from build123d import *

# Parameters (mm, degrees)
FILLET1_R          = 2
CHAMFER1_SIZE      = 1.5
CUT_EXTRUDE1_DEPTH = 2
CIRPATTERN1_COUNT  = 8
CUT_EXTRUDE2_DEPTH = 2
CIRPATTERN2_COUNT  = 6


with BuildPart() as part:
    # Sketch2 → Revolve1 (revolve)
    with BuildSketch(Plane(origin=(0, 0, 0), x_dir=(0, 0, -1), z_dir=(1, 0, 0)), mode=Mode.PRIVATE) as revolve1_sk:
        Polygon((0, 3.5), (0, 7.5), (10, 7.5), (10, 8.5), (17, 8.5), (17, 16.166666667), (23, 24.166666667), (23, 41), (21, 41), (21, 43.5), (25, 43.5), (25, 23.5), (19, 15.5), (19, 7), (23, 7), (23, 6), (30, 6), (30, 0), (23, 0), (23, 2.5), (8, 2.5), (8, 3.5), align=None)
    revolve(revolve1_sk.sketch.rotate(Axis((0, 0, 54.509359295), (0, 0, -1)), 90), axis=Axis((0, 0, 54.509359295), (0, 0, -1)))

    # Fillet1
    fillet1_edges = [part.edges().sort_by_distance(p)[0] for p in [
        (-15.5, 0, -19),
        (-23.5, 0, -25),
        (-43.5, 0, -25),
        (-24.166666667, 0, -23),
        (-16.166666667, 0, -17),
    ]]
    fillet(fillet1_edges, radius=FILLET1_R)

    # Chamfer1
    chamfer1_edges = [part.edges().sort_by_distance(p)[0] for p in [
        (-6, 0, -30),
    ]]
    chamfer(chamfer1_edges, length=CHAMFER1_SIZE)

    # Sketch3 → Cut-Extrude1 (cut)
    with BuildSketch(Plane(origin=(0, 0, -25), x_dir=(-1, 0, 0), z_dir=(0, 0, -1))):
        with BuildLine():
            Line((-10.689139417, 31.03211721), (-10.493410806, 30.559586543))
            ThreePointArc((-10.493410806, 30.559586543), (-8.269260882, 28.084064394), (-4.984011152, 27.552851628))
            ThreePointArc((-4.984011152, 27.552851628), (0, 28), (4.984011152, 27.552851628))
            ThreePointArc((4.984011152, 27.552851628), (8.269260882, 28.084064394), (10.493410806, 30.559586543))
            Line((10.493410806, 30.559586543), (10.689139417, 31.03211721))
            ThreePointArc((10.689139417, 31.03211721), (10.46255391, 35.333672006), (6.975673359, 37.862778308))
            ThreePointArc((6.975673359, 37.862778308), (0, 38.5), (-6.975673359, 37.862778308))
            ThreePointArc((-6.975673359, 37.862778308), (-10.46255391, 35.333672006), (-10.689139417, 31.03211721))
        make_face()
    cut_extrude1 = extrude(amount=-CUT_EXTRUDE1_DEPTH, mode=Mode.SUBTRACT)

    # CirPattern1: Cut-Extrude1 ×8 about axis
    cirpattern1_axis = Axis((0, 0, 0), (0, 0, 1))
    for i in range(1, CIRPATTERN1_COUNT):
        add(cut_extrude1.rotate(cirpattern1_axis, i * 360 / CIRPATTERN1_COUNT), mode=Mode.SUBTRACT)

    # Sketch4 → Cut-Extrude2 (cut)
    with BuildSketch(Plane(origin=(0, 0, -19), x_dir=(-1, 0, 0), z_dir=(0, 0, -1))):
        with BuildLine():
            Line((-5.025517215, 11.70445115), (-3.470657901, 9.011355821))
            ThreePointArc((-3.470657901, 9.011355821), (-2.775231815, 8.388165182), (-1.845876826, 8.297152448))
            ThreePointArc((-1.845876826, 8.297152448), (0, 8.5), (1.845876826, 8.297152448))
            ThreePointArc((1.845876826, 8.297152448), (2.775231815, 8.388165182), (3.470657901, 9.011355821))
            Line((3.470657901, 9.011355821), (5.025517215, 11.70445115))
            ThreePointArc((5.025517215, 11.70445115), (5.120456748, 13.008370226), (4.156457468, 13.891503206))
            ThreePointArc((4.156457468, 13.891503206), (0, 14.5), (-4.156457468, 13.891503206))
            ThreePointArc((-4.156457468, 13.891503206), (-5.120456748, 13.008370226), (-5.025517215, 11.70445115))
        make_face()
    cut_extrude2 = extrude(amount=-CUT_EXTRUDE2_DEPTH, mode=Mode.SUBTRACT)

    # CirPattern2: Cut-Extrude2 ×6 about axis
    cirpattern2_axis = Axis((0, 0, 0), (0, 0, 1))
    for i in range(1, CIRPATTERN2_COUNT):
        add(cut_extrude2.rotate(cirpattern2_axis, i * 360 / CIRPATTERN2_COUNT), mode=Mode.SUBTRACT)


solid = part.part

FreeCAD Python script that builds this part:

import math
import FreeCAD as App
import Part
import Sketcher
Q = App.Units.Quantity


def edges_at(feature, points):
    """Names of the edges that pass closest to the given points."""
    edges = feature.Shape.Edges
    near = lambda p: min(range(len(edges)), key=lambda i: edges[i].distToShape(Part.Vertex(*p))[0])
    return sorted({f"Edge{near(p) + 1}" for p in points})


def add_polygon(sketch, points):
    """Adds a closed chain of lines whose ends are joined by coincident constraints."""
    first, n = sketch.GeometryCount, len(points)
    for a, b in zip(points, points[1:] + points[:1]):
        sketch.addGeometry(Part.LineSegment(App.Vector(*a, 0), App.Vector(*b, 0)), False)
    for i in range(n):
        sketch.addConstraint(Sketcher.Constraint("Coincident", first + i, 2, first + (i + 1) % n, 1))

doc = App.newDocument("Part")
body = doc.addObject("PartDesign::Body", "Body")

# Sketch on YZ plane
sketch1 = doc.addObject("Sketcher::SketchObject", "Sketch")
body.addObject(sketch1)
sketch1.AttachmentSupport = (doc.YZ_Plane, [""])
sketch1.MapMode = "FlatFace"
add_polygon(sketch1, [(7.5, 0), (3.5, 0), (3.5, -8), (2.5, -8), (2.5, -23), (0, -23), (0, -30), (6, -30), (6, -23), (7, -23), (7, -19), (15.5, -19), (23.5, -25), (43.5, -25), (43.5, -21), (41, -21), (41, -23), (24.166667, -23), (16.166667, -17), (8.5, -17), (8.5, -10), (7.5, -10)])  # lines 0-21
sketch1.addConstraint([
    Sketcher.Constraint("Horizontal", 0),
    Sketcher.Constraint("Vertical", 1),
    Sketcher.Constraint("Horizontal", 2),
    Sketcher.Constraint("Vertical", 3),
    Sketcher.Constraint("Horizontal", 4),
    Sketcher.Constraint("Vertical", 5),
    Sketcher.Constraint("Horizontal", 6),
    Sketcher.Constraint("Vertical", 7),
    Sketcher.Constraint("Horizontal", 8),
    Sketcher.Constraint("Vertical", 9),
    Sketcher.Constraint("Horizontal", 10),
    Sketcher.Constraint("Horizontal", 12),
    Sketcher.Constraint("Vertical", 13),
    Sketcher.Constraint("Horizontal", 14),
    Sketcher.Constraint("Vertical", 15),
    Sketcher.Constraint("Horizontal", 16),
    Sketcher.Constraint("Horizontal", 18),
    Sketcher.Constraint("Vertical", 19),
    Sketcher.Constraint("Horizontal", 20),
    Sketcher.Constraint("Vertical", 21),
    Sketcher.Constraint("PointOnObject", 0, 2, -1),
    Sketcher.Constraint("PointOnObject", 4, 2, -2),
    Sketcher.Constraint("Parallel", 11, 17),
    Sketcher.Constraint("Horizontal", 4, 2, 7, 2),
    Sketcher.Constraint("Horizontal", 8, 2, 15, 2),
    Sketcher.Constraint("Equal", 2, 8),
    Sketcher.Constraint("Equal", 4, 14),
    Sketcher.Constraint("Equal", 8, 20),
    Sketcher.Constraint("Equal", 0, 9),
    Sketcher.Constraint("Equal", 9, 13),
    Sketcher.Constraint("Equal", 7, 19),
    Sketcher.Constraint("Equal", 11, 17),
    Sketcher.Constraint("DistanceX", 0, 2, 0, 1, Q("4 mm")),
    Sketcher.Constraint("DistanceX", 2, 2, 2, 1, Q("1 mm")),
    Sketcher.Constraint("DistanceX", 6, 1, 6, 2, Q("6 mm")),
    Sketcher.Constraint("DistanceX", 12, 1, 12, 2, Q("20 mm")),
    Sketcher.Constraint("DistanceY", 1, 2, 1, 1, Q("8 mm")),
    Sketcher.Constraint("DistanceY", 3, 2, 3, 1, Q("15 mm")),
    Sketcher.Constraint("DistanceY", 5, 2, 5, 1, Q("7 mm")),
    Sketcher.Constraint("DistanceY", 15, 2, 15, 1, Q("2 mm")),
    Sketcher.Constraint("Distance", 11, Q("10 mm")),
    Sketcher.Constraint("DistanceX", 4, 2, 4, 1, Q("2.5 mm")),
    Sketcher.Constraint("DistanceX", 10, 1, 10, 2, Q("8.5 mm")),
    Sketcher.Constraint("DistanceX", 16, 2, 16, 1, Q("16.833333 mm")),
])
revolution = doc.addObject("PartDesign::Revolution", "Revolution")
body.addObject(revolution)
revolution.Profile = sketch1
revolution.ReferenceAxis = (sketch1, ["V_Axis"])
revolution.Angle = 360
doc.recompute()

fillet = doc.addObject("PartDesign::Fillet", "Fillet")
body.addObject(fillet)
fillet.Base = (revolution, edges_at(revolution, [
    (-15.5, 0, -19),
    (-23.5, 0, -25),
    (-43.5, 0, -25),
    (-24.167, 0, -23),
    (-16.167, 0, -17),
]))
fillet.Radius = 2
doc.recompute()

chamfer = doc.addObject("PartDesign::Chamfer", "Chamfer")
body.addObject(chamfer)
chamfer.Base = (fillet, edges_at(fillet, [(-6, 0, -30)]))
chamfer.Size = 1.5

# Sketch on XY plane
sketch2 = doc.addObject("Sketcher::SketchObject", "Sketch001")
body.addObject(sketch2)
sketch2.AttachmentSupport = (doc.XY_Plane, [""])
sketch2.MapMode = "FlatFace"
sketch2.AttachmentOffset = App.Placement(App.Vector(0, 0, -25), App.Rotation())
sketch2.addGeometry([
    Part.LineSegment(App.Vector(10.689139, 31.032117, 0), App.Vector(10.493411, 30.559587, 0)),  # 0
    Part.ArcOfCircle(Part.Circle(App.Vector(5.874013, 32.473004, 0), App.Vector(0, 0, 1), 5), math.radians(-100.25331), math.radians(-22.5)),  # 1
    Part.ArcOfCircle(Part.Circle(App.Vector(0, 0, 0), App.Vector(0, 0, 1), 28), math.radians(79.74669), math.radians(100.25331)),  # 2
    Part.ArcOfCircle(Part.Circle(App.Vector(-5.874013, 32.473004, 0), App.Vector(0, 0, 1), 5), math.radians(-157.5), math.radians(-79.74669)),  # 3
    Part.LineSegment(App.Vector(-10.493411, 30.559587, 0), App.Vector(-10.689139, 31.032117, 0)),  # 4
    Part.ArcOfCircle(Part.Circle(App.Vector(-6.069742, 32.945534, 0), App.Vector(0, 0, 1), 5), math.radians(100.438867), math.radians(202.5)),  # 5
    Part.ArcOfCircle(Part.Circle(App.Vector(0, 0, 0), App.Vector(0, 0, 1), 38.5), math.radians(79.561133), math.radians(100.438867)),  # 6
    Part.ArcOfCircle(Part.Circle(App.Vector(6.069742, 32.945534, 0), App.Vector(0, 0, 1), 5), math.radians(-22.5), math.radians(79.561133)),  # 7
], False)
sketch2.addConstraint([
    Sketcher.Constraint("Tangent", 0, 2, 1, 2),
    Sketcher.Constraint("Tangent", 1, 1, 2, 1),
    Sketcher.Constraint("Tangent", 2, 2, 3, 2),
    Sketcher.Constraint("Tangent", 3, 1, 4, 1),
    Sketcher.Constraint("Tangent", 4, 2, 5, 2),
    Sketcher.Constraint("Tangent", 5, 1, 6, 2),
    Sketcher.Constraint("Tangent", 6, 1, 7, 2),
    Sketcher.Constraint("Tangent", 7, 1, 0, 1),
    Sketcher.Constraint("Coincident", 2, 3, -1, 1),
    Sketcher.Constraint("Coincident", 6, 3, -1, 1),
    Sketcher.Constraint("Equal", 1, 3),
    Sketcher.Constraint("Equal", 3, 5),
    Sketcher.Constraint("Equal", 5, 7),
    Sketcher.Constraint("Symmetric", 0, 2, 3, 1, -2),
    Sketcher.Constraint("Radius", 1, Q("5 mm")),
    Sketcher.Constraint("Radius", 2, Q("28 mm")),
    Sketcher.Constraint("Radius", 6, Q("38.5 mm")),
    Sketcher.Constraint("Angle", 0, Q("-112.5 deg")),
    Sketcher.Constraint("DistanceX", 1, 1, 1, 3, Q("0.890002 mm")),
])
pocket1 = doc.addObject("PartDesign::Pocket", "Pocket")
body.addObject(pocket1)
pocket1.Profile = sketch2
pocket1.Length = 2
pocket1.Reversed = True
doc.recompute()

polarpattern = doc.addObject("PartDesign::PolarPattern", "PolarPattern")
body.addObject(polarpattern)
polarpattern.Originals = [pocket1]
polarpattern.Axis = (doc.Z_Axis, [""])
polarpattern.Angle = 360
polarpattern.Occurrences = 8
body.Tip = polarpattern

# Sketch on XY plane
sketch3 = doc.addObject("Sketcher::SketchObject", "Sketch002")
body.addObject(sketch3)
sketch3.AttachmentSupport = (doc.XY_Plane, [""])
sketch3.MapMode = "FlatFace"
sketch3.AttachmentOffset = App.Placement(App.Vector(0, 0, -19), App.Rotation())
sketch3.addGeometry([
    Part.LineSegment(App.Vector(5.025517, 11.704451, 0), App.Vector(3.470658, 9.011356, 0)),  # 0
    Part.ArcOfCircle(Part.Circle(App.Vector(2.17162, 9.761356, 0), App.Vector(0, 0, 1), 1.5), math.radians(-102.542397), math.radians(-30)),  # 1
    Part.ArcOfCircle(Part.Circle(App.Vector(0, 0, 0), App.Vector(0, 0, 1), 8.5), math.radians(77.457603), math.radians(102.542397)),  # 2
    Part.ArcOfCircle(Part.Circle(App.Vector(-2.17162, 9.761356, 0), App.Vector(0, 0, 1), 1.5), math.radians(-150), math.radians(-77.457603)),  # 3
    Part.LineSegment(App.Vector(-3.470658, 9.011356, 0), App.Vector(-5.025517, 11.704451, 0)),  # 4
    Part.ArcOfCircle(Part.Circle(App.Vector(-3.726479, 12.454451, 0), App.Vector(0, 0, 1), 1.5), math.radians(106.657636), math.radians(210)),  # 5
    Part.ArcOfCircle(Part.Circle(App.Vector(0, 0, 0), App.Vector(0, 0, 1), 14.5), math.radians(73.342364), math.radians(106.657636)),  # 6
    Part.ArcOfCircle(Part.Circle(App.Vector(3.726479, 12.454451, 0), App.Vector(0, 0, 1), 1.5), math.radians(-30), math.radians(73.342364)),  # 7
], False)
sketch3.addConstraint([
    Sketcher.Constraint("Tangent", 0, 2, 1, 2),
    Sketcher.Constraint("Tangent", 1, 1, 2, 1),
    Sketcher.Constraint("Tangent", 2, 2, 3, 2),
    Sketcher.Constraint("Tangent", 3, 1, 4, 1),
    Sketcher.Constraint("Tangent", 4, 2, 5, 2),
    Sketcher.Constraint("Tangent", 5, 1, 6, 2),
    Sketcher.Constraint("Tangent", 6, 1, 7, 2),
    Sketcher.Constraint("Tangent", 7, 1, 0, 1),
    Sketcher.Constraint("Coincident", 2, 3, -1, 1),
    Sketcher.Constraint("Coincident", 6, 3, -1, 1),
    Sketcher.Constraint("Equal", 1, 3),
    Sketcher.Constraint("Equal", 3, 5),
    Sketcher.Constraint("Equal", 5, 7),
    Sketcher.Constraint("Symmetric", 0, 2, 3, 1, -2),
    Sketcher.Constraint("Radius", 1, Q("1.5 mm")),
    Sketcher.Constraint("Radius", 2, Q("8.5 mm")),
    Sketcher.Constraint("Radius", 6, Q("14.5 mm")),
    Sketcher.Constraint("Angle", 0, Q("-120 deg")),
    Sketcher.Constraint("DistanceX", 5, 3, 1, 3, Q("5.898099 mm")),
])
pocket2 = doc.addObject("PartDesign::Pocket", "Pocket001")
body.addObject(pocket2)
pocket2.Profile = sketch3
pocket2.Length = 2
pocket2.Reversed = True
doc.recompute()

polarpattern2 = doc.addObject("PartDesign::PolarPattern", "PolarPattern001")
body.addObject(polarpattern2)
polarpattern2.Originals = [pocket2]
polarpattern2.Axis = (doc.Z_Axis, [""])
polarpattern2.Angle = 360
polarpattern2.Occurrences = 6
body.Tip = polarpattern2

doc.recompute()
